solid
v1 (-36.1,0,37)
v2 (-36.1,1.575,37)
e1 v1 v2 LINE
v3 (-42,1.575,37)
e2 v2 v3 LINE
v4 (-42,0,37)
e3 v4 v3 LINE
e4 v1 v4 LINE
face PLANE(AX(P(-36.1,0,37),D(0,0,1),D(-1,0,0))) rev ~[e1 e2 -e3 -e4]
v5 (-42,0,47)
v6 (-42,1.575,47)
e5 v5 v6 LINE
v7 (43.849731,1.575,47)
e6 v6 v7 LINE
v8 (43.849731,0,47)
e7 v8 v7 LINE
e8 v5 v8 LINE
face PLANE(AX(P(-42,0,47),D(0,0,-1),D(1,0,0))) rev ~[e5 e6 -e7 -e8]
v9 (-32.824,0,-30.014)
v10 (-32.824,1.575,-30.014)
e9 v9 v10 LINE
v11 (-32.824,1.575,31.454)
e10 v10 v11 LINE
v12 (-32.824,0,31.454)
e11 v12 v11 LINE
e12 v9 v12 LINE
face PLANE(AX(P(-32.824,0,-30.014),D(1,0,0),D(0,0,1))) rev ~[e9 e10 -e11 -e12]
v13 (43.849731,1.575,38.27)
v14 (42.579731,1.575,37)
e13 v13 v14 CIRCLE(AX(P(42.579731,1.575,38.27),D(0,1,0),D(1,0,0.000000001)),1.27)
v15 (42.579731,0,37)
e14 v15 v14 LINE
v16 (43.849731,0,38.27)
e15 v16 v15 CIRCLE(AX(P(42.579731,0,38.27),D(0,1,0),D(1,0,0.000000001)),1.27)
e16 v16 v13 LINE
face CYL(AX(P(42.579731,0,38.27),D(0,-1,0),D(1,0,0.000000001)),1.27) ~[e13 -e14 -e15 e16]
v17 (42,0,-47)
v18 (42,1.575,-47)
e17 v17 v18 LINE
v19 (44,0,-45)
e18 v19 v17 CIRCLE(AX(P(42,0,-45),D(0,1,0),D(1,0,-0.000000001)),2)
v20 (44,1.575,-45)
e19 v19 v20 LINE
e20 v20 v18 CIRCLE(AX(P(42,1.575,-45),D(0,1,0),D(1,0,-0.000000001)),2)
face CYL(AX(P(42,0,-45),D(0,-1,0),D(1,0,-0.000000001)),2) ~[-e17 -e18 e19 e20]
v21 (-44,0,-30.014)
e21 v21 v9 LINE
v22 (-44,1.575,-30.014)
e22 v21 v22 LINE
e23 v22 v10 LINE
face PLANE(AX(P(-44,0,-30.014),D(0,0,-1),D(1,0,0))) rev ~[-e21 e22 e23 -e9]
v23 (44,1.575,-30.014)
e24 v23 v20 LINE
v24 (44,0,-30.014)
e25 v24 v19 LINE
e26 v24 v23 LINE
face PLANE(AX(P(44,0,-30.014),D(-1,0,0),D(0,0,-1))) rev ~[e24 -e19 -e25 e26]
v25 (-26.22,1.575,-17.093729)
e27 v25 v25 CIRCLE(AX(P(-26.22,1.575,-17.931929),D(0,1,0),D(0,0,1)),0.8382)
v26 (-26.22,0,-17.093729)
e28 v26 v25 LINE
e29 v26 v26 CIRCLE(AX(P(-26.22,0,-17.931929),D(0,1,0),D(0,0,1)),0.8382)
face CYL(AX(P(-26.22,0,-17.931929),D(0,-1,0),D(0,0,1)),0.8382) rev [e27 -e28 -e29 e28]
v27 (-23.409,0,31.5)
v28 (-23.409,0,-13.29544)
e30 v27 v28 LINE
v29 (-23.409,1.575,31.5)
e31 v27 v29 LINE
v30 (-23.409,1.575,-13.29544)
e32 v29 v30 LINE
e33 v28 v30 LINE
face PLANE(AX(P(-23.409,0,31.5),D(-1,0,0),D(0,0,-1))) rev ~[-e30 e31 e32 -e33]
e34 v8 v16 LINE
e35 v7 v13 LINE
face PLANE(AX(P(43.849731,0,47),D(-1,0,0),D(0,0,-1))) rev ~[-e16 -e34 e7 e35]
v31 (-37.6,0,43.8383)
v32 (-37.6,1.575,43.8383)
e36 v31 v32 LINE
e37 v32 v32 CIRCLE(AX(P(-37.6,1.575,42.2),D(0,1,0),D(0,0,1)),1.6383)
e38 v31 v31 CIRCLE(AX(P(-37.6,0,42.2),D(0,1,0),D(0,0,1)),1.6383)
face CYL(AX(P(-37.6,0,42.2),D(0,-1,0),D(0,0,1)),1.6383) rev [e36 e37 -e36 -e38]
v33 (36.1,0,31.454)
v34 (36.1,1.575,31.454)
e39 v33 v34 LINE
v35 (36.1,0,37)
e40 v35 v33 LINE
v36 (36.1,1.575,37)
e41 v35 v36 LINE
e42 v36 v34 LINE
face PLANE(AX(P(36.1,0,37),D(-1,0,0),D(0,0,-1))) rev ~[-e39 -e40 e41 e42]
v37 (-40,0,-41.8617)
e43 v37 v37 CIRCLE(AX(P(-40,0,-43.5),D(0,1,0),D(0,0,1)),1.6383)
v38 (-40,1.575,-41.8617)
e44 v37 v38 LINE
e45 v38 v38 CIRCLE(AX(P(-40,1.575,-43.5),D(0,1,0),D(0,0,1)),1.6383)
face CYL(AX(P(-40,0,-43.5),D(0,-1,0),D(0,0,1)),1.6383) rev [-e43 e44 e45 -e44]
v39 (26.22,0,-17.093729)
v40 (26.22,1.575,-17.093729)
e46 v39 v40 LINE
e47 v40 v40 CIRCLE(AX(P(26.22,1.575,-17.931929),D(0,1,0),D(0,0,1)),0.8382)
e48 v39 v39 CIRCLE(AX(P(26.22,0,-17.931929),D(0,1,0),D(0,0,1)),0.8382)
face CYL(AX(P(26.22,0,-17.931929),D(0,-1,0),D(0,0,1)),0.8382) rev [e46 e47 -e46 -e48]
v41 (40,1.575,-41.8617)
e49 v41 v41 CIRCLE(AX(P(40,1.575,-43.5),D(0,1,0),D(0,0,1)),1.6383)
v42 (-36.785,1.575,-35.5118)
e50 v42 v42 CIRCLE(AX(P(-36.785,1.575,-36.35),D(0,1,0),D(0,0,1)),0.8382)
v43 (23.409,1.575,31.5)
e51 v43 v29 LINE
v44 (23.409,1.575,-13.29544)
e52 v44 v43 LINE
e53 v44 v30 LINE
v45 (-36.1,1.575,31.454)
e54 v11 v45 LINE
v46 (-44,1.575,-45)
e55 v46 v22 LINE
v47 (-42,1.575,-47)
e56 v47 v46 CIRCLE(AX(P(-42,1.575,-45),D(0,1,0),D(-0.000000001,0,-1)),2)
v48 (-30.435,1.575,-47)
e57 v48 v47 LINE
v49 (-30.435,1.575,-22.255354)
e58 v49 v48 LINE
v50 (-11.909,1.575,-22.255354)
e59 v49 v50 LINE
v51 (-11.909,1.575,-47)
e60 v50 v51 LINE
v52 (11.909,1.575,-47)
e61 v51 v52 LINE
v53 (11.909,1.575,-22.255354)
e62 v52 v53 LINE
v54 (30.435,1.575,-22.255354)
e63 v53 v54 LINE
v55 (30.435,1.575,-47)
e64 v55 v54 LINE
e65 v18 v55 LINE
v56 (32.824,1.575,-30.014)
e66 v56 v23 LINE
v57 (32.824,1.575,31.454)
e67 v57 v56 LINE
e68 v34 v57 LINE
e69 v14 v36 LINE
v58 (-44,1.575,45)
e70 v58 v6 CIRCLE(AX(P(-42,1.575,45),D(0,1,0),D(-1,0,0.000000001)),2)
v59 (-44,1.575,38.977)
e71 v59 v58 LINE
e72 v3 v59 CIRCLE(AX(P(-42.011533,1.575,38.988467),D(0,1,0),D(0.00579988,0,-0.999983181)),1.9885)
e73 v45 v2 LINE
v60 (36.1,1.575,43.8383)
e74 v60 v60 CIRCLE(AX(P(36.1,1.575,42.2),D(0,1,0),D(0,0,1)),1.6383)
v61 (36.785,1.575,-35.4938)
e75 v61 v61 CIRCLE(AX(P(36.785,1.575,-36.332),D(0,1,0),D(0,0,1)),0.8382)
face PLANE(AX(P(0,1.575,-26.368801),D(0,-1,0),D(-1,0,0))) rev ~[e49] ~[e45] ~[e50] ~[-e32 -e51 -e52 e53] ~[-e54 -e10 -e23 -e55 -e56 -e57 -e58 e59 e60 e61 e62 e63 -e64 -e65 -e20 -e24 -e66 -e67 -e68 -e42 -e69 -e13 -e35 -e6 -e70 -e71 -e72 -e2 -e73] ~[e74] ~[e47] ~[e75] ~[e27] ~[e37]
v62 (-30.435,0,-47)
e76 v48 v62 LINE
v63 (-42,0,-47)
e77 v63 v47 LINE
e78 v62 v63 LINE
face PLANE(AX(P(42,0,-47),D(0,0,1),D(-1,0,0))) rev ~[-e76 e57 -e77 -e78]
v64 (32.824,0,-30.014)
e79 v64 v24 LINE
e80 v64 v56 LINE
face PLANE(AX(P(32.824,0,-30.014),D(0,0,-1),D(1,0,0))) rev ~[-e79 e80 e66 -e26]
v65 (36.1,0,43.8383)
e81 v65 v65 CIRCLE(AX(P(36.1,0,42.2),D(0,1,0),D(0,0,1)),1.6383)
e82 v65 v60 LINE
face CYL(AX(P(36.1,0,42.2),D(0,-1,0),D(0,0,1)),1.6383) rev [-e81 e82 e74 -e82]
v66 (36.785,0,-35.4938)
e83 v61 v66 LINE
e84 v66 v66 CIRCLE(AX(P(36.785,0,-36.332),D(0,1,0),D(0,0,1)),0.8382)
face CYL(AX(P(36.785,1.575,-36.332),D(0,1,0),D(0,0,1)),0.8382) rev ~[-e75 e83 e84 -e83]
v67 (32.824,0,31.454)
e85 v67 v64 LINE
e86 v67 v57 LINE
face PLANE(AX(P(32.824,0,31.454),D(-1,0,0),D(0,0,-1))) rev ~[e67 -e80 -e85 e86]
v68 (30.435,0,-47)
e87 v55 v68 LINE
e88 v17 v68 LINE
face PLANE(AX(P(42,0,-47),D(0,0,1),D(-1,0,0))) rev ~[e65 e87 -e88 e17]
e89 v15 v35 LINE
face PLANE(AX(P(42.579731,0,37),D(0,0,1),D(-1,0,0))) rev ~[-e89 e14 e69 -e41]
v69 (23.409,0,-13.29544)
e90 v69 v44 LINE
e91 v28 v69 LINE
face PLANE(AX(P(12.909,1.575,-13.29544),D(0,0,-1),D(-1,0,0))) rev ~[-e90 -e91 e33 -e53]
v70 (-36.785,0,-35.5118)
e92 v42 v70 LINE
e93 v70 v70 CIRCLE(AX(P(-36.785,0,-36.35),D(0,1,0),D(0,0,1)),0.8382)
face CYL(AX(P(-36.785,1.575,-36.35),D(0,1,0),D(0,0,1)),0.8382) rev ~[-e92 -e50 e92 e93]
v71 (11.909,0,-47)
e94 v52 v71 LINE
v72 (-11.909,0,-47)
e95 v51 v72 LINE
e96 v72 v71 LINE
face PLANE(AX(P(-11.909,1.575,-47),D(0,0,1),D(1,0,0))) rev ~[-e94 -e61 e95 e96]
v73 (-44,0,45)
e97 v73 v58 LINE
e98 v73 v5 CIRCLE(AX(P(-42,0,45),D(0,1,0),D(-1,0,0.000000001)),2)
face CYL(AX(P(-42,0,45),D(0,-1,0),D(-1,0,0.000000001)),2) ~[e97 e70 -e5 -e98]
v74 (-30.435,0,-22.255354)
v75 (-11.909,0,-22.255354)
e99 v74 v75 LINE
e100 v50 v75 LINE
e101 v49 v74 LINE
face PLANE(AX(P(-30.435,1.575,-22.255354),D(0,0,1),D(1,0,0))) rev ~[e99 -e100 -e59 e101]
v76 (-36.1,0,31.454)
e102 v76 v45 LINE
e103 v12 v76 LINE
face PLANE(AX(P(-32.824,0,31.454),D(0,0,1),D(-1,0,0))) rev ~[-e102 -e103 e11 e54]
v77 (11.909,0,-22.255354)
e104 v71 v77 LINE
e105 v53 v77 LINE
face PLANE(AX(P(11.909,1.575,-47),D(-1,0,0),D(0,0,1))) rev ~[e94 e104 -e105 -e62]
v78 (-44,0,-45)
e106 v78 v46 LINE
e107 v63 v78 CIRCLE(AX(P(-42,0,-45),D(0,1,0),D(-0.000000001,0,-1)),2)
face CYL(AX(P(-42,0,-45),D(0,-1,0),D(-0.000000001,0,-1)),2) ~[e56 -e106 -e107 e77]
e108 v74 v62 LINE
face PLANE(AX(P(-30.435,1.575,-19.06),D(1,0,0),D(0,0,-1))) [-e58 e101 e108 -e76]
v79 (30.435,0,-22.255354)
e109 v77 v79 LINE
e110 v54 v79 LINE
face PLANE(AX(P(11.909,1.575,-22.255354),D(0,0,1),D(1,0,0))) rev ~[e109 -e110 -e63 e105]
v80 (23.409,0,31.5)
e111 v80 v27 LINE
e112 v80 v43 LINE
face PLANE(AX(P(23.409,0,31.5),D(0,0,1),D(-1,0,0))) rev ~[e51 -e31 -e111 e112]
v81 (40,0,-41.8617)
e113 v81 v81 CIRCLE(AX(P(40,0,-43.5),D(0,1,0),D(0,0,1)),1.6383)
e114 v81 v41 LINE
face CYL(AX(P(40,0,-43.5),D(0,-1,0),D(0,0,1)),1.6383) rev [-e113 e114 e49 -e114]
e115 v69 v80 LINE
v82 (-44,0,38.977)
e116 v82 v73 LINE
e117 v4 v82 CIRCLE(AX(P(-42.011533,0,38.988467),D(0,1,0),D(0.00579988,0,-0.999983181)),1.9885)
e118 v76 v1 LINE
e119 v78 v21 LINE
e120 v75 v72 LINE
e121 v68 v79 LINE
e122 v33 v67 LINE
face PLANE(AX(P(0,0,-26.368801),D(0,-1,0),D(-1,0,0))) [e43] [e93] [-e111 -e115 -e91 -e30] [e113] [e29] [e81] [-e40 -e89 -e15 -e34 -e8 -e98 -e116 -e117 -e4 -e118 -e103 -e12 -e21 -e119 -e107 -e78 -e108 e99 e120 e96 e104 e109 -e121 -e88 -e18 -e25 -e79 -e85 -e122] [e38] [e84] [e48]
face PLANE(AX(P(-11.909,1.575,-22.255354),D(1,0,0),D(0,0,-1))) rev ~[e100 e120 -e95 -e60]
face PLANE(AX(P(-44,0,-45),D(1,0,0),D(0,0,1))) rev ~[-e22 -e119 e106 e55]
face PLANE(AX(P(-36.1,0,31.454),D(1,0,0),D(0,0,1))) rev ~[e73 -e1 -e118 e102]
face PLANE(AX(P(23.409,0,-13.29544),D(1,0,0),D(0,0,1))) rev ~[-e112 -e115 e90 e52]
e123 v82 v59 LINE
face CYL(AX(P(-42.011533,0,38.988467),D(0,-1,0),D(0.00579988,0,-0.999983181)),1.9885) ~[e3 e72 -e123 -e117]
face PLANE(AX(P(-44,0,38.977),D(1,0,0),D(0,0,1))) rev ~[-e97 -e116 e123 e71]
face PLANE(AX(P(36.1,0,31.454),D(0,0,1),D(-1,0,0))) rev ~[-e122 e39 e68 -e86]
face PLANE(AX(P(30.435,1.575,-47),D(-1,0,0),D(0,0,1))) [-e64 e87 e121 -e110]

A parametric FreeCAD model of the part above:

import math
import FreeCAD as App
import Part
import Sketcher
from FreeCAD import Vector
Q = App.Units.Quantity


def add_polygon(sketch, points):
    """Adds a closed chain of lines whose ends are joined by coincident constraints."""
    first, n = sketch.GeometryCount, len(points)
    for a, b in zip(points, points[1:] + points[:1]):
        sketch.addGeometry(Part.LineSegment(App.Vector(*a, 0), App.Vector(*b, 0)), False)
    for i in range(n):
        sketch.addConstraint(Sketcher.Constraint("Coincident", first + i, 2, first + (i + 1) % n, 1))

doc = App.newDocument("Part")
body = doc.addObject("PartDesign::Body", "Body")

# Sketch on XZ plane
sketch1 = doc.addObject("Sketcher::SketchObject", "Sketch")
body.addObject(sketch1)
sketch1.AttachmentSupport = (doc.XZ_Plane, [""])
sketch1.MapMode = "FlatFace"
sketch1.addGeometry(Part.LineSegment(Vector(-44, -45, 0), Vector(-44, -30, 0)), False)  # 0
sketch1.addGeometry(Part.LineSegment(Vector(-44, -30, 0), Vector(-32.8, -30, 0)), False)  # 1
sketch1.addGeometry(Part.LineSegment(Vector(-32.8, -30, 0), Vector(-32.8, 31.5, 0)), False)  # 2
sketch1.addGeometry(Part.LineSegment(Vector(-32.8, 31.5, 0), Vector(-36.1, 31.5, 0)), False)  # 3
sketch1.addGeometry(Part.LineSegment(Vector(-36.1, 31.5, 0), Vector(-36.1, 37, 0)), False)  # 4
sketch1.addGeometry(Part.LineSegment(Vector(-36.1, 37, 0), Vector(-42, 37, 0)), False)  # 5
sketch1.addGeometry(Part.ArcOfCircle(Part.Circle(Vector(-42, 39, 0), Vector(0, 0, 1), 2), math.radians(-180), math.radians(-90)), False)  # 6
sketch1.addGeometry(Part.LineSegment(Vector(-44, 39, 0), Vector(-44, 45, 0)), False)  # 7
sketch1.addGeometry(Part.ArcOfCircle(Part.Circle(Vector(-42, 45, 0), Vector(0, 0, 1), 2), math.radians(90), math.radians(180)), False)  # 8
sketch1.addGeometry(Part.LineSegment(Vector(-42, 47, 0), Vector(43.8, 47, 0)), False)  # 9
sketch1.addGeometry(Part.LineSegment(Vector(43.8, 47, 0), Vector(43.8, 38.3, 0)), False)  # 10
sketch1.addGeometry(Part.ArcOfCircle(Part.Circle(Vector(42.6, 38.3, 0), Vector(0, 0, 1), 1.3), math.radians(-90), math.radians(0)), False)  # 11
sketch1.addGeometry(Part.LineSegment(Vector(42.6, 37, 0), Vector(36.1, 37, 0)), False)  # 12
sketch1.addGeometry(Part.LineSegment(Vector(36.1, 37, 0), Vector(36.1, 31.5, 0)), False)  # 13
sketch1.addGeometry(Part.LineSegment(Vector(36.1, 31.5, 0), Vector(32.8, 31.5, 0)), False)  # 14
sketch1.addGeometry(Part.LineSegment(Vector(32.8, 31.5, 0), Vector(32.8, -30, 0)), False)  # 15
sketch1.addGeometry(Part.LineSegment(Vector(32.8, -30, 0), Vector(44, -30, 0)), False)  # 16
sketch1.addGeometry(Part.LineSegment(Vector(44, -30, 0), Vector(44, -45, 0)), False)  # 17
sketch1.addGeometry(Part.ArcOfCircle(Part.Circle(Vector(42, -45, 0), Vector(0, 0, 1), 2), math.radians(-90), math.radians(0)), False)  # 18
sketch1.addGeometry(Part.LineSegment(Vector(42, -47, 0), Vector(-42, -47, 0)), False)  # 19
sketch1.addGeometry(Part.ArcOfCircle(Part.Circle(Vector(-42, -45, 0), Vector(0, 0, 1), 2), math.radians(-180), math.radians(-90)), False)  # 20
sketch1.addGeometry(Part.Circle(Vector(-37.6, 42.2, 0), Vector(0, 0, 1), 1.6), False)  # 21
sketch1.addGeometry(Part.Circle(Vector(36.1, 42.2, 0), Vector(0, 0, 1), 1.6), False)  # 22
add_polygon(sketch1, [(23.4, -13.3), (23.4, 31.5), (-23.4, 31.5), (-23.4, -13.3), (-12.9, -13.3), (-12.9, -26), (12.9, -26), (12.9, -13.3)])  # lines 23-30
sketch1.addGeometry(Part.Circle(Vector(-26.2, -17.9, 0), Vector(0, 0, 1), 0.8), False)  # 31
sketch1.addGeometry(Part.Circle(Vector(-40, -43.5, 0), Vector(0, 0, 1), 1.6), False)  # 32
sketch1.addGeometry(Part.Circle(Vector(26.2, -17.9, 0), Vector(0, 0, 1), 0.8), False)  # 33
sketch1.addGeometry(Part.Circle(Vector(40, -43.5, 0), Vector(0, 0, 1), 1.6), False)  # 34
sketch1.addConstraint([
    Sketcher.Constraint("Coincident", 0, 2, 1, 1),
    Sketcher.Constraint("Coincident", 1, 2, 2, 1),
    Sketcher.Constraint("Coincident", 2, 2, 3, 1),
    Sketcher.Constraint("Coincident", 3, 2, 4, 1),
    Sketcher.Constraint("Coincident", 4, 2, 5, 1),
    Sketcher.Constraint("Coincident", 5, 2, 6, 2),
    Sketcher.Constraint("Coincident", 6, 1, 7, 1),
    Sketcher.Constraint("Tangent", 7, 2, 8, 2),
    Sketcher.Constraint("Tangent", 8, 1, 9, 1),
    Sketcher.Constraint("Coincident", 9, 2, 10, 1),
    Sketcher.Constraint("Tangent", 10, 2, 11, 2),
    Sketcher.Constraint("Tangent", 11, 1, 12, 1),
    Sketcher.Constraint("Coincident", 12, 2, 13, 1),
    Sketcher.Constraint("Coincident", 13, 2, 14, 1),
    Sketcher.Constraint("Coincident", 14, 2, 15, 1),
    Sketcher.Constraint("Coincident", 15, 2, 16, 1),
    Sketcher.Constraint("Coincident", 16, 2, 17, 1),
    Sketcher.Constraint("Tangent", 17, 2, 18, 2),
    Sketcher.Constraint("Tangent", 18, 1, 19, 1),
    Sketcher.Constraint("Tangent", 19, 2, 20, 2),
    Sketcher.Constraint("Tangent", 20, 1, 0, 1),
    Sketcher.Constraint("Vertical", 0),
    Sketcher.Constraint("Horizontal", 1),
    Sketcher.Constraint("Vertical", 2),
    Sketcher.Constraint("Horizontal", 3),
    Sketcher.Constraint("Vertical", 4),
    Sketcher.Constraint("Horizontal", 5),
    Sketcher.Constraint("Vertical", 7),
    Sketcher.Constraint("Horizontal", 9),
    Sketcher.Constraint("Vertical", 10),
    Sketcher.Constraint("Horizontal", 12),
    Sketcher.Constraint("Vertical", 13),
    Sketcher.Constraint("Horizontal", 14),
    Sketcher.Constraint("Vertical", 15),
    Sketcher.Constraint("Horizontal", 16),
    Sketcher.Constraint("Vertical", 17),
    Sketcher.Constraint("Horizontal", 19),
    Sketcher.Constraint("Vertical", 23),
    Sketcher.Constraint("Horizontal", 24),
    Sketcher.Constraint("Vertical", 25),
    Sketcher.Constraint("Horizontal", 26),
    Sketcher.Constraint("Vertical", 27),
    Sketcher.Constraint("Horizontal", 28),
    Sketcher.Constraint("Vertical", 29),
    Sketcher.Constraint("Horizontal", 30),
    Sketcher.Constraint("Equal", 8, 18),
    Sketcher.Constraint("Equal", 18, 20),
    Sketcher.Constraint("Equal", 21, 22),
    Sketcher.Constraint("Equal", 22, 32),
    Sketcher.Constraint("Equal", 31, 33),
    Sketcher.Constraint("Equal", 32, 34),
    Sketcher.Constraint("Symmetric", 8, 3, 18, 3, -1, 1),
    Sketcher.Constraint("Symmetric", 31, 3, 33, 3, -2),
    Sketcher.Constraint("Symmetric", 32, 3, 34, 3, -2),
    Sketcher.Constraint("Symmetric", 4, 2, 12, 2, -2),
    Sketcher.Constraint("Symmetric", 2, 2, 14, 2, -2),
    Sketcher.Constraint("Symmetric", 0, 2, 16, 2, -2),
    Sketcher.Constraint("Symmetric", 26, 2, 29, 2, -2),
    Sketcher.Constraint("Horizontal", 21, 3, 22, 3),
    Sketcher.Constraint("Vertical", 20, 3, 5, 2),
    Sketcher.Constraint("Vertical", 22, 3, 12, 2),
    Sketcher.Constraint("Equal", 26, 30),
    Sketcher.Constraint("Radius", 11, Q("0.05 in")),
    Sketcher.Constraint("Diameter", 21, Q("0.129 in")),
    Sketcher.Constraint("Diameter", 31, Q("0.066 in")),
    Sketcher.Constraint("DistanceY", 27, 2, 27, 1, Q("0.5 in")),
    Sketcher.Constraint("DistanceX", 1, 1, 1, 2, Q("0.44 in")),
    Sketcher.Constraint("DistanceY", 0, 1, 0, 2, Q("0.59 in")),
    Sketcher.Constraint("DistanceY", 2, 1, 2, 2, Q("2.42 in")),
    Sketcher.Constraint("DistanceX", 0, 2, 31, 3, Q("0.7 in")),
    Sketcher.Constraint("Radius", 6, 1.9885),
    Sketcher.Constraint("Radius", 8, 2.0),
    Sketcher.Constraint("DistanceY", 23, 1, 23, 2, Q("1.7636 in")),
    Sketcher.Constraint("DistanceX", 3, 2, 3, 1, 3.276),
    Sketcher.Constraint("DistanceX", 19, 2, 19, 1, 84.0),
    Sketcher.Constraint("DistanceX", 24, 2, 24, 1, 46.818),
    Sketcher.Constraint("DistanceX", 26, 1, 26, 2, 10.5),
    Sketcher.Constraint("DistanceY", 4, 1, 4, 2, 5.546),
    Sketcher.Constraint("DistanceY", 7, 1, 7, 2, 6.023),
    Sketcher.Constraint("DistanceY", 10, 2, 10, 1, 8.73),
    Sketcher.Constraint("DistanceX", 9, 1, 9, 2, 85.849731),
    Sketcher.Constraint("DistanceX", 21, 3, -1, 1, 37.6),
    Sketcher.Constraint("DistanceY", -1, 1, 21, 3, 42.2),
    Sketcher.Constraint("DistanceX", 32, 3, -1, 1, 40.0),
    Sketcher.Constraint("DistanceY", 32, 3, -1, 1, 43.5),
    Sketcher.Constraint("DistanceY", -1, 1, 23, 2, 31.5),
    Sketcher.Constraint("DistanceY", 31, 3, -1, 1, 17.931929),
])
pad1 = doc.addObject("PartDesign::Pad", "Pad")
body.addObject(pad1)
pad1.Profile = sketch1
pad1.Length = 1.575
pad1.Reversed = True

# Sketch on XZ plane
sketch2 = doc.addObject("Sketcher::SketchObject", "Sketch001")
body.addObject(sketch2)
sketch2.AttachmentSupport = (doc.XZ_Plane, [""])
sketch2.MapMode = "FlatFace"
sketch2.AttachmentOffset = App.Placement(Vector(0, 0, -1.575), App.Rotation())
add_polygon(sketch2, [(-30, -19), (-13, -19), (-13, -26), (13, -26), (13, -19), (30, -19), (30, -47), (-30, -47)])  # lines 0-7
sketch2.addConstraint([
    Sketcher.Constraint("Horizontal", 0),
    Sketcher.Constraint("Vertical", 1),
    Sketcher.Constraint("Horizontal", 2),
    Sketcher.Constraint("Vertical", 3),
    Sketcher.Constraint("Horizontal", 4),
    Sketcher.Constraint("Vertical", 5),
    Sketcher.Constraint("Horizontal", 6),
    Sketcher.Constraint("Vertical", 7),
    Sketcher.Constraint("Symmetric", 0, 2, 3, 2, -2),
    Sketcher.Constraint("Equal", 0, 4),
    Sketcher.Constraint("DistanceY", 5, 2, 5, 1, Q("1.1 in")),
    Sketcher.Constraint("DistanceX", 0, 1, 0, 2, Q("0.69 in")),
    Sketcher.Constraint("DistanceX", 2, 1, 2, 2, 25.818),
    Sketcher.Constraint("DistanceY", 1, 2, 1, 1, 6.93544),
    Sketcher.Constraint("DistanceY", 0, 2, -1, 1, 19.06),
])
pocket1 = doc.addObject("PartDesign::Pocket", "Pocket")
body.addObject(pocket1)
pocket1.Profile = sketch2
pocket1.Length = Q("0.1 in")
pocket1.Reversed = True

# Sketch on XZ plane
sketch3 = doc.addObject("Sketcher::SketchObject", "Sketch002")
body.addObject(sketch3)
sketch3.AttachmentSupport = (doc.XZ_Plane, [""])
sketch3.MapMode = "FlatFace"
sketch3.AttachmentOffset = App.Placement(Vector(0, 0, -1.575), App.Rotation())
sketch3.addGeometry([
    Part.Circle(Vector(-36.8, -36.4, 0), Vector(0, 0, 1), 0.8),
    Part.Circle(Vector(36.8, -36.3, 0), Vector(0, 0, 1), 0.8),
], False)
sketch3.addConstraint([
    Sketcher.Constraint("Equal", 0, 1),
    Sketcher.Constraint("Diameter", 0, Q("0.066 in")),
    Sketcher.Constraint("DistanceX", 0, 3, -1, 1, 36.785),
    Sketcher.Constraint("DistanceY", 0, 3, -1, 1, 36.35),
    Sketcher.Constraint("DistanceX", -1, 1, 1, 3, 36.785),
    Sketcher.Constraint("DistanceY", 1, 3, -1, 1, 36.332),
])
pocket2 = doc.addObject("PartDesign::Pocket", "Pocket001")
body.addObject(pocket2)
pocket2.Profile = sketch3
pocket2.Length = 1.575
pocket2.Reversed = True

# Sketch on XZ plane
sketch4 = doc.addObject("Sketcher::SketchObject", "Sketch003")
body.addObject(sketch4)
sketch4.AttachmentSupport = (doc.XZ_Plane, [""])
sketch4.MapMode = "FlatFace"
sketch4.AttachmentOffset = App.Placement(Vector(0, 0, -1.575), App.Rotation())
add_polygon(sketch4, [(12.9, -13.3), (12.9, -19.1), (30.4, -19.1), (30.4, -22.3), (11.9, -22.3), (11.9, -47), (-11.9, -47), (-11.9, -22.3), (-30.4, -22.3), (-30.4, -19.1), (-12.9, -19.1), (-12.9, -13.3)])  # lines 0-11
sketch4.addConstraint([
    Sketcher.Constraint("Vertical", 0),
    Sketcher.Constraint("Horizontal", 1),
    Sketcher.Constraint("Vertical", 2),
    Sketcher.Constraint("Horizontal", 3),
    Sketcher.Constraint("Vertical", 4),
    Sketcher.Constraint("Horizontal", 5),
    Sketcher.Constraint("Vertical", 6),
    Sketcher.Constraint("Horizontal", 7),
    Sketcher.Constraint("Vertical", 8),
    Sketcher.Constraint("Horizontal", 9),
    Sketcher.Constraint("Vertical", 10),
    Sketcher.Constraint("Horizontal", 11),
    Sketcher.Constraint("Symmetric", 3, 2, 6, 2, -2),
    Sketcher.Constraint("Symmetric", 1, 2, 8, 2, -2),
    Sketcher.Constraint("Equal", 1, 9),
    Sketcher.Constraint("DistanceX", 1, 1, 1, 2, Q("0.69 in")),
    Sketcher.Constraint("DistanceY", 4, 2, 0, 2, Q("1.1 in")),
    Sketcher.Constraint("DistanceX", 3, 2, 3, 1, 18.526),
    Sketcher.Constraint("DistanceX", 5, 2, 5, 1, 23.818),
    Sketcher.Constraint("DistanceY", 0, 2, 0, 1, 5.76456),
    Sketcher.Constraint("DistanceY", 0, 2, -1, 1, 19.06),
    Sketcher.Constraint("DistanceY", 2, 2, 2, 1, 3.195354),
])
pad2 = doc.addObject("PartDesign::Pad", "Pad001")
body.addObject(pad2)
pad2.Profile = sketch4
pad2.Length = 1.575

doc.recompute()
